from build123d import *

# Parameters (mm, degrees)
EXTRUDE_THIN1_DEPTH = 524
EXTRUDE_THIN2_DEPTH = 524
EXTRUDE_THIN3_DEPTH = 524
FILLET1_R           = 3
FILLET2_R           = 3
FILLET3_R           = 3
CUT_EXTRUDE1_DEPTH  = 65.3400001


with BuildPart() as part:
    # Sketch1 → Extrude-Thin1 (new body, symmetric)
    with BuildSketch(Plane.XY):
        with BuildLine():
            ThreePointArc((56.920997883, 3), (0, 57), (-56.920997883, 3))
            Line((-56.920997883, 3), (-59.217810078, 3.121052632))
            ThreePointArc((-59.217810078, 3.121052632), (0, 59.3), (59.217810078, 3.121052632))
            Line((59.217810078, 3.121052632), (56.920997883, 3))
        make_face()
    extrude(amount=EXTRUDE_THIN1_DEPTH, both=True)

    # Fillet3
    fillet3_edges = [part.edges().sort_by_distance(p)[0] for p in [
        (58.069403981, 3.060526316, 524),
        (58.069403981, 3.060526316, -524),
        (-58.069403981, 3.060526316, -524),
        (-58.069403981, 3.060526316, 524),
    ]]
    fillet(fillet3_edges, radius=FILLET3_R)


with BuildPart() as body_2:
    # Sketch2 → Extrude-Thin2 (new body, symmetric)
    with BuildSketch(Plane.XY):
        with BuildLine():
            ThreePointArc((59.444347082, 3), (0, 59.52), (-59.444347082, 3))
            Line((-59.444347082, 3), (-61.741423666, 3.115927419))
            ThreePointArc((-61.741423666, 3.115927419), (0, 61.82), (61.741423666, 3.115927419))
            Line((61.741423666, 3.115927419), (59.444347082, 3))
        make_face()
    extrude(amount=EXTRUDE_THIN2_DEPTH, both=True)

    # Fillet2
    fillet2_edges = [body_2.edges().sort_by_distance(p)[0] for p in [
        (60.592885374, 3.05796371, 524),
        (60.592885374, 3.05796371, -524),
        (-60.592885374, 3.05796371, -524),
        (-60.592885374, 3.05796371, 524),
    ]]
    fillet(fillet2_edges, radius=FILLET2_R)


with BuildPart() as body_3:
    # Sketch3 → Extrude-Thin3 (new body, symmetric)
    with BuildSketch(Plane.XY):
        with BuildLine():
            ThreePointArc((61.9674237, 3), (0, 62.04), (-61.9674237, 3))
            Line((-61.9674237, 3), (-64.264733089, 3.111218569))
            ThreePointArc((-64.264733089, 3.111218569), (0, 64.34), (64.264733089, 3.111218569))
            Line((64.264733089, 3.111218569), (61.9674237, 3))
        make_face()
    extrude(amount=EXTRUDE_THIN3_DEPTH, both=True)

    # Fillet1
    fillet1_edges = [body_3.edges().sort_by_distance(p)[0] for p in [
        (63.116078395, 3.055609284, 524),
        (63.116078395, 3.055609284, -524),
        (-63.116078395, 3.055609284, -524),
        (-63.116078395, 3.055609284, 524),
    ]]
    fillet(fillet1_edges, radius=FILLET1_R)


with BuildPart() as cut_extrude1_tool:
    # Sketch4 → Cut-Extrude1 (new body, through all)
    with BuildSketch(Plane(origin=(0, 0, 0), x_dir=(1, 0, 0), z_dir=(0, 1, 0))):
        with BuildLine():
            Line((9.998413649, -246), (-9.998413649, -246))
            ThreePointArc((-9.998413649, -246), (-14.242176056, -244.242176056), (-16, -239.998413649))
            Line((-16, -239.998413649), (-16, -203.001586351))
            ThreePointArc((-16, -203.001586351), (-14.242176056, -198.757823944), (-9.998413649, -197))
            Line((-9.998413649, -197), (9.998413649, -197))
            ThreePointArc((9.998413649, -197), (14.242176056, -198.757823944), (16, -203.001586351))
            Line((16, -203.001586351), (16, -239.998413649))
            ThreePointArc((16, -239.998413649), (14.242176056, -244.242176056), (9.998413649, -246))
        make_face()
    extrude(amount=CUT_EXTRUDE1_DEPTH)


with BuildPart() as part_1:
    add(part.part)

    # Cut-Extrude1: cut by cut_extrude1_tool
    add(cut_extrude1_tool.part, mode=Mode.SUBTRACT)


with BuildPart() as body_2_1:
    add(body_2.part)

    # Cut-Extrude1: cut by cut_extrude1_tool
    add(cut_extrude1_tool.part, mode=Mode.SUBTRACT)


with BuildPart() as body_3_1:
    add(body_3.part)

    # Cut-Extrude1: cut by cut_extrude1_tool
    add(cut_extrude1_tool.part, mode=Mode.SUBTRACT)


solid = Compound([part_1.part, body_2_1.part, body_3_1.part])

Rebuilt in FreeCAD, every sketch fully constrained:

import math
import FreeCAD as App
import Part
import Sketcher


def edges_at(feature, points):
    """Names of the edges that pass closest to the given points."""
    edges = feature.Shape.Edges
    near = lambda p: min(range(len(edges)), key=lambda i: edges[i].distToShape(Part.Vertex(*p))[0])
    return sorted({f"Edge{near(p) + 1}" for p in points})

doc = App.newDocument("Part")
body = doc.addObject("PartDesign::Body", "Body")

# Sketch on XY plane
sketch1 = doc.addObject("Sketcher::SketchObject", "Sketch")
body.addObject(sketch1)
sketch1.AttachmentSupport = (doc.XY_Plane, [""])
sketch1.MapMode = "FlatFace"
sketch1.addGeometry([
    Part.ArcOfCircle(Part.Circle(App.Vector(0, 0, 0), App.Vector(0, 0, 1), 57), math.radians(3), math.radians(177)),
    Part.LineSegment(App.Vector(56.9, 3, 0), App.Vector(59.2, 3.1, 0)),
    Part.ArcOfCircle(Part.Circle(App.Vector(0, 0, 0), App.Vector(0, 0, 1), 59.3), math.radians(3), math.radians(177)),
    Part.LineSegment(App.Vector(-59.2, 3.1, 0), App.Vector(-56.9, 3, 0)),
], False)
sketch1.addConstraint([
    Sketcher.Constraint("Coincident", 0, 1, 1, 1),
    Sketcher.Constraint("Coincident", 1, 2, 2, 1),
    Sketcher.Constraint("Coincident", 2, 2, 3, 1),
    Sketcher.Constraint("Coincident", 3, 2, 0, 2),
    Sketcher.Constraint("Coincident", 0, 3, -1, 1),
    Sketcher.Constraint("Coincident", 2, 3, -1, 1),
    Sketcher.Constraint("Horizontal", 1, 2, 2, 2),
    Sketcher.Constraint("Horizontal", 0, 1, 3, 2),
    Sketcher.Constraint("Radius", 0, 57.0),
    Sketcher.Constraint("Radius", 2, 59.3),
    Sketcher.Constraint("DistanceY", -1, 1, 0, 1, 3.0),
    Sketcher.Constraint("DistanceX", -1, 1, 1, 2, 59.21781),
])
pad1 = doc.addObject("PartDesign::Pad", "Pad")
body.addObject(pad1)
pad1.Profile = sketch1
pad1.Length = 1048
pad1.Midplane = True
doc.recompute()

fillet = doc.addObject("PartDesign::Fillet", "Fillet")
body.addObject(fillet)
fillet.Base = (pad1, edges_at(pad1, [
    (58.069, 3.061, 524),
    (58.069, 3.061, -524),
    (-58.069, 3.061, -524),
    (-58.069, 3.061, 524),
]))
fillet.Radius = 3
body2 = doc.addObject("PartDesign::Body", "Body001")

# Sketch on XY plane
sketch2 = doc.addObject("Sketcher::SketchObject", "Sketch001")
body2.addObject(sketch2)
sketch2.AttachmentSupport = (doc.getObject("XY_Plane001"), [""])
sketch2.MapMode = "FlatFace"
sketch2.addGeometry([
    Part.ArcOfCircle(Part.Circle(App.Vector(0, 0, 0), App.Vector(0, 0, 1), 59.5), math.radians(3), math.radians(177)),
    Part.LineSegment(App.Vector(59.4, 3, 0), App.Vector(61.7, 3.1, 0)),
    Part.ArcOfCircle(Part.Circle(App.Vector(0, 0, 0), App.Vector(0, 0, 1), 61.8), math.radians(3), math.radians(177)),
    Part.LineSegment(App.Vector(-61.7, 3.1, 0), App.Vector(-59.4, 3, 0)),
], False)
sketch2.addConstraint([
    Sketcher.Constraint("Coincident", 0, 1, 1, 1),
    Sketcher.Constraint("Coincident", 1, 2, 2, 1),
    Sketcher.Constraint("Coincident", 2, 2, 3, 1),
    Sketcher.Constraint("Coincident", 3, 2, 0, 2),
    Sketcher.Constraint("Coincident", 0, 3, -1, 1),
    Sketcher.Constraint("Coincident", 2, 3, -1, 1),
    Sketcher.Constraint("Horizontal", 1, 2, 2, 2),
    Sketcher.Constraint("Horizontal", 0, 1, 3, 2),
    Sketcher.Constraint("Radius", 0, 59.52),
    Sketcher.Constraint("Radius", 2, 61.82),
    Sketcher.Constraint("DistanceY", -1, 1, 0, 1, 3.0),
    Sketcher.Constraint("DistanceX", 2, 2, 0, 1, 121.185771),
])
pad2 = doc.addObject("PartDesign::Pad", "Pad001")
body2.addObject(pad2)
pad2.Profile = sketch2
pad2.Length = 1048
pad2.Midplane = True
doc.recompute()

fillet2 = doc.addObject("PartDesign::Fillet", "Fillet001")
body2.addObject(fillet2)
fillet2.Base = (pad2, edges_at(pad2, [
    (60.593, 3.058, 524),
    (60.593, 3.058, -524),
    (-60.593, 3.058, -524),
    (-60.593, 3.058, 524),
]))
fillet2.Radius = 3
body3 = doc.addObject("PartDesign::Body", "Body002")

# Sketch on XY plane
sketch3 = doc.addObject("Sketcher::SketchObject", "Sketch002")
body3.addObject(sketch3)
sketch3.AttachmentSupport = (doc.getObject("XY_Plane002"), [""])
sketch3.MapMode = "FlatFace"
sketch3.addGeometry([
    Part.ArcOfCircle(Part.Circle(App.Vector(0, 0, 0), App.Vector(0, 0, 1), 62), math.radians(3), math.radians(177)),
    Part.LineSegment(App.Vector(62, 3, 0), App.Vector(64.3, 3.1, 0)),
    Part.ArcOfCircle(Part.Circle(App.Vector(0, 0, 0), App.Vector(0, 0, 1), 64.3), math.radians(3), math.radians(177)),
    Part.LineSegment(App.Vector(-64.3, 3.1, 0), App.Vector(-62, 3, 0)),
], False)
sketch3.addConstraint([
    Sketcher.Constraint("Coincident", 0, 1, 1, 1),
    Sketcher.Constraint("Coincident", 1, 2, 2, 1),
    Sketcher.Constraint("Coincident", 2, 2, 3, 1),
    Sketcher.Constraint("Coincident", 3, 2, 0, 2),
    Sketcher.Constraint("Coincident", 0, 3, -1, 1),
    Sketcher.Constraint("Coincident", 2, 3, -1, 1),
    Sketcher.Constraint("Horizontal", 1, 2, 2, 2),
    Sketcher.Constraint("Horizontal", 0, 1, 3, 2),
    Sketcher.Constraint("Radius", 0, 62.04),
    Sketcher.Constraint("Radius", 2, 64.34),
    Sketcher.Constraint("DistanceY", -1, 1, 0, 1, 3.0),
    Sketcher.Constraint("DistanceY", -1, 1, 1, 2, 3.111219),
])
pad3 = doc.addObject("PartDesign::Pad", "Pad002")
body3.addObject(pad3)
pad3.Profile = sketch3
pad3.Length = 1048
pad3.Midplane = True
doc.recompute()

fillet3 = doc.addObject("PartDesign::Fillet", "Fillet002")
body3.addObject(fillet3)
fillet3.Base = (pad3, edges_at(pad3, [
    (63.116, 3.056, 524),
    (63.116, 3.056, -524),
    (-63.116, 3.056, -524),
    (-63.116, 3.056, 524),
]))
fillet3.Radius = 3
body4 = doc.addObject("PartDesign::Body", "Body003")

# Sketch on XZ plane
sketch4 = doc.addObject("Sketcher::SketchObject", "Sketch003")
body4.addObject(sketch4)
sketch4.AttachmentSupport = (doc.getObject("XZ_Plane003"), [""])
sketch4.MapMode = "FlatFace"
sketch4.addGeometry([
    Part.LineSegment(App.Vector(-10, 246, 0), App.Vector(10, 246, 0)),  # 0
    Part.ArcOfCircle(Part.Circle(App.Vector(10, 240, 0), App.Vector(0, 0, 1), 6), math.radians(0), math.radians(90)),  # 1
    Part.LineSegment(App.Vector(16, 240, 0), App.Vector(16, 203, 0)),  # 2
    Part.ArcOfCircle(Part.Circle(App.Vector(10, 203, 0), App.Vector(0, 0, 1), 6), math.radians(-90), math.radians(0)),  # 3
    Part.LineSegment(App.Vector(10, 197, 0), App.Vector(-10, 197, 0)),  # 4
    Part.ArcOfCircle(Part.Circle(App.Vector(-10, 203, 0), App.Vector(0, 0, 1), 6), math.radians(180), math.radians(270)),  # 5
    Part.LineSegment(App.Vector(-16, 203, 0), App.Vector(-16, 240, 0)),  # 6
    Part.ArcOfCircle(Part.Circle(App.Vector(-10, 240, 0), App.Vector(0, 0, 1), 6), math.radians(90), math.radians(180)),  # 7
], False)
sketch4.addConstraint([
    Sketcher.Constraint("Tangent", 0, 2, 1, 2),
    Sketcher.Constraint("Tangent", 1, 1, 2, 1),
    Sketcher.Constraint("Tangent", 2, 2, 3, 2),
    Sketcher.Constraint("Tangent", 3, 1, 4, 1),
    Sketcher.Constraint("Tangent", 4, 2, 5, 2),
    Sketcher.Constraint("Tangent", 5, 1, 6, 1),
    Sketcher.Constraint("Tangent", 6, 2, 7, 2),
    Sketcher.Constraint("Tangent", 7, 1, 0, 1),
    Sketcher.Constraint("Horizontal", 0),
    Sketcher.Constraint("Vertical", 2),
    Sketcher.Constraint("Horizontal", 4),
    Sketcher.Constraint("Vertical", 6),
    Sketcher.Constraint("Equal", 1, 3),
    Sketcher.Constraint("Equal", 3, 5),
    Sketcher.Constraint("Equal", 5, 7),
    Sketcher.Constraint("DistanceY", -1, 1, 0, 2, 246.0),
    Sketcher.Constraint("DistanceX", -1, 1, 1, 1, 16.0),
    Sketcher.Constraint("DistanceY", -1, 1, 3, 1, 197.0),
    Sketcher.Constraint("DistanceX", 5, 1, -1, 1, 16.0),
    Sketcher.Constraint("Radius", 1, 6.001586),
])
pad4 = doc.addObject("PartDesign::Pad", "Pad003")
body4.addObject(pad4)
pad4.Profile = sketch4
pad4.Length = 65.34
pad4.Reversed = True
doc.recompute()

body5 = doc.addObject("PartDesign::Body", "Body004")
body5.BaseFeature = body4
boolean = doc.addObject("PartDesign::Boolean", "Boolean")
body.addObject(boolean)
boolean.Type = "Cut"
boolean.addObjects([body5])
doc.recompute()

body6 = doc.addObject("PartDesign::Body", "Body005")
body6.BaseFeature = body4
boolean2 = doc.addObject("PartDesign::Boolean", "Boolean001")
body2.addObject(boolean2)
boolean2.Type = "Cut"
boolean2.addObjects([body6])
doc.recompute()

boolean3 = doc.addObject("PartDesign::Boolean", "Boolean002")
body3.addObject(boolean3)
boolean3.Type = "Cut"
boolean3.addObjects([body4])

doc.recompute()
